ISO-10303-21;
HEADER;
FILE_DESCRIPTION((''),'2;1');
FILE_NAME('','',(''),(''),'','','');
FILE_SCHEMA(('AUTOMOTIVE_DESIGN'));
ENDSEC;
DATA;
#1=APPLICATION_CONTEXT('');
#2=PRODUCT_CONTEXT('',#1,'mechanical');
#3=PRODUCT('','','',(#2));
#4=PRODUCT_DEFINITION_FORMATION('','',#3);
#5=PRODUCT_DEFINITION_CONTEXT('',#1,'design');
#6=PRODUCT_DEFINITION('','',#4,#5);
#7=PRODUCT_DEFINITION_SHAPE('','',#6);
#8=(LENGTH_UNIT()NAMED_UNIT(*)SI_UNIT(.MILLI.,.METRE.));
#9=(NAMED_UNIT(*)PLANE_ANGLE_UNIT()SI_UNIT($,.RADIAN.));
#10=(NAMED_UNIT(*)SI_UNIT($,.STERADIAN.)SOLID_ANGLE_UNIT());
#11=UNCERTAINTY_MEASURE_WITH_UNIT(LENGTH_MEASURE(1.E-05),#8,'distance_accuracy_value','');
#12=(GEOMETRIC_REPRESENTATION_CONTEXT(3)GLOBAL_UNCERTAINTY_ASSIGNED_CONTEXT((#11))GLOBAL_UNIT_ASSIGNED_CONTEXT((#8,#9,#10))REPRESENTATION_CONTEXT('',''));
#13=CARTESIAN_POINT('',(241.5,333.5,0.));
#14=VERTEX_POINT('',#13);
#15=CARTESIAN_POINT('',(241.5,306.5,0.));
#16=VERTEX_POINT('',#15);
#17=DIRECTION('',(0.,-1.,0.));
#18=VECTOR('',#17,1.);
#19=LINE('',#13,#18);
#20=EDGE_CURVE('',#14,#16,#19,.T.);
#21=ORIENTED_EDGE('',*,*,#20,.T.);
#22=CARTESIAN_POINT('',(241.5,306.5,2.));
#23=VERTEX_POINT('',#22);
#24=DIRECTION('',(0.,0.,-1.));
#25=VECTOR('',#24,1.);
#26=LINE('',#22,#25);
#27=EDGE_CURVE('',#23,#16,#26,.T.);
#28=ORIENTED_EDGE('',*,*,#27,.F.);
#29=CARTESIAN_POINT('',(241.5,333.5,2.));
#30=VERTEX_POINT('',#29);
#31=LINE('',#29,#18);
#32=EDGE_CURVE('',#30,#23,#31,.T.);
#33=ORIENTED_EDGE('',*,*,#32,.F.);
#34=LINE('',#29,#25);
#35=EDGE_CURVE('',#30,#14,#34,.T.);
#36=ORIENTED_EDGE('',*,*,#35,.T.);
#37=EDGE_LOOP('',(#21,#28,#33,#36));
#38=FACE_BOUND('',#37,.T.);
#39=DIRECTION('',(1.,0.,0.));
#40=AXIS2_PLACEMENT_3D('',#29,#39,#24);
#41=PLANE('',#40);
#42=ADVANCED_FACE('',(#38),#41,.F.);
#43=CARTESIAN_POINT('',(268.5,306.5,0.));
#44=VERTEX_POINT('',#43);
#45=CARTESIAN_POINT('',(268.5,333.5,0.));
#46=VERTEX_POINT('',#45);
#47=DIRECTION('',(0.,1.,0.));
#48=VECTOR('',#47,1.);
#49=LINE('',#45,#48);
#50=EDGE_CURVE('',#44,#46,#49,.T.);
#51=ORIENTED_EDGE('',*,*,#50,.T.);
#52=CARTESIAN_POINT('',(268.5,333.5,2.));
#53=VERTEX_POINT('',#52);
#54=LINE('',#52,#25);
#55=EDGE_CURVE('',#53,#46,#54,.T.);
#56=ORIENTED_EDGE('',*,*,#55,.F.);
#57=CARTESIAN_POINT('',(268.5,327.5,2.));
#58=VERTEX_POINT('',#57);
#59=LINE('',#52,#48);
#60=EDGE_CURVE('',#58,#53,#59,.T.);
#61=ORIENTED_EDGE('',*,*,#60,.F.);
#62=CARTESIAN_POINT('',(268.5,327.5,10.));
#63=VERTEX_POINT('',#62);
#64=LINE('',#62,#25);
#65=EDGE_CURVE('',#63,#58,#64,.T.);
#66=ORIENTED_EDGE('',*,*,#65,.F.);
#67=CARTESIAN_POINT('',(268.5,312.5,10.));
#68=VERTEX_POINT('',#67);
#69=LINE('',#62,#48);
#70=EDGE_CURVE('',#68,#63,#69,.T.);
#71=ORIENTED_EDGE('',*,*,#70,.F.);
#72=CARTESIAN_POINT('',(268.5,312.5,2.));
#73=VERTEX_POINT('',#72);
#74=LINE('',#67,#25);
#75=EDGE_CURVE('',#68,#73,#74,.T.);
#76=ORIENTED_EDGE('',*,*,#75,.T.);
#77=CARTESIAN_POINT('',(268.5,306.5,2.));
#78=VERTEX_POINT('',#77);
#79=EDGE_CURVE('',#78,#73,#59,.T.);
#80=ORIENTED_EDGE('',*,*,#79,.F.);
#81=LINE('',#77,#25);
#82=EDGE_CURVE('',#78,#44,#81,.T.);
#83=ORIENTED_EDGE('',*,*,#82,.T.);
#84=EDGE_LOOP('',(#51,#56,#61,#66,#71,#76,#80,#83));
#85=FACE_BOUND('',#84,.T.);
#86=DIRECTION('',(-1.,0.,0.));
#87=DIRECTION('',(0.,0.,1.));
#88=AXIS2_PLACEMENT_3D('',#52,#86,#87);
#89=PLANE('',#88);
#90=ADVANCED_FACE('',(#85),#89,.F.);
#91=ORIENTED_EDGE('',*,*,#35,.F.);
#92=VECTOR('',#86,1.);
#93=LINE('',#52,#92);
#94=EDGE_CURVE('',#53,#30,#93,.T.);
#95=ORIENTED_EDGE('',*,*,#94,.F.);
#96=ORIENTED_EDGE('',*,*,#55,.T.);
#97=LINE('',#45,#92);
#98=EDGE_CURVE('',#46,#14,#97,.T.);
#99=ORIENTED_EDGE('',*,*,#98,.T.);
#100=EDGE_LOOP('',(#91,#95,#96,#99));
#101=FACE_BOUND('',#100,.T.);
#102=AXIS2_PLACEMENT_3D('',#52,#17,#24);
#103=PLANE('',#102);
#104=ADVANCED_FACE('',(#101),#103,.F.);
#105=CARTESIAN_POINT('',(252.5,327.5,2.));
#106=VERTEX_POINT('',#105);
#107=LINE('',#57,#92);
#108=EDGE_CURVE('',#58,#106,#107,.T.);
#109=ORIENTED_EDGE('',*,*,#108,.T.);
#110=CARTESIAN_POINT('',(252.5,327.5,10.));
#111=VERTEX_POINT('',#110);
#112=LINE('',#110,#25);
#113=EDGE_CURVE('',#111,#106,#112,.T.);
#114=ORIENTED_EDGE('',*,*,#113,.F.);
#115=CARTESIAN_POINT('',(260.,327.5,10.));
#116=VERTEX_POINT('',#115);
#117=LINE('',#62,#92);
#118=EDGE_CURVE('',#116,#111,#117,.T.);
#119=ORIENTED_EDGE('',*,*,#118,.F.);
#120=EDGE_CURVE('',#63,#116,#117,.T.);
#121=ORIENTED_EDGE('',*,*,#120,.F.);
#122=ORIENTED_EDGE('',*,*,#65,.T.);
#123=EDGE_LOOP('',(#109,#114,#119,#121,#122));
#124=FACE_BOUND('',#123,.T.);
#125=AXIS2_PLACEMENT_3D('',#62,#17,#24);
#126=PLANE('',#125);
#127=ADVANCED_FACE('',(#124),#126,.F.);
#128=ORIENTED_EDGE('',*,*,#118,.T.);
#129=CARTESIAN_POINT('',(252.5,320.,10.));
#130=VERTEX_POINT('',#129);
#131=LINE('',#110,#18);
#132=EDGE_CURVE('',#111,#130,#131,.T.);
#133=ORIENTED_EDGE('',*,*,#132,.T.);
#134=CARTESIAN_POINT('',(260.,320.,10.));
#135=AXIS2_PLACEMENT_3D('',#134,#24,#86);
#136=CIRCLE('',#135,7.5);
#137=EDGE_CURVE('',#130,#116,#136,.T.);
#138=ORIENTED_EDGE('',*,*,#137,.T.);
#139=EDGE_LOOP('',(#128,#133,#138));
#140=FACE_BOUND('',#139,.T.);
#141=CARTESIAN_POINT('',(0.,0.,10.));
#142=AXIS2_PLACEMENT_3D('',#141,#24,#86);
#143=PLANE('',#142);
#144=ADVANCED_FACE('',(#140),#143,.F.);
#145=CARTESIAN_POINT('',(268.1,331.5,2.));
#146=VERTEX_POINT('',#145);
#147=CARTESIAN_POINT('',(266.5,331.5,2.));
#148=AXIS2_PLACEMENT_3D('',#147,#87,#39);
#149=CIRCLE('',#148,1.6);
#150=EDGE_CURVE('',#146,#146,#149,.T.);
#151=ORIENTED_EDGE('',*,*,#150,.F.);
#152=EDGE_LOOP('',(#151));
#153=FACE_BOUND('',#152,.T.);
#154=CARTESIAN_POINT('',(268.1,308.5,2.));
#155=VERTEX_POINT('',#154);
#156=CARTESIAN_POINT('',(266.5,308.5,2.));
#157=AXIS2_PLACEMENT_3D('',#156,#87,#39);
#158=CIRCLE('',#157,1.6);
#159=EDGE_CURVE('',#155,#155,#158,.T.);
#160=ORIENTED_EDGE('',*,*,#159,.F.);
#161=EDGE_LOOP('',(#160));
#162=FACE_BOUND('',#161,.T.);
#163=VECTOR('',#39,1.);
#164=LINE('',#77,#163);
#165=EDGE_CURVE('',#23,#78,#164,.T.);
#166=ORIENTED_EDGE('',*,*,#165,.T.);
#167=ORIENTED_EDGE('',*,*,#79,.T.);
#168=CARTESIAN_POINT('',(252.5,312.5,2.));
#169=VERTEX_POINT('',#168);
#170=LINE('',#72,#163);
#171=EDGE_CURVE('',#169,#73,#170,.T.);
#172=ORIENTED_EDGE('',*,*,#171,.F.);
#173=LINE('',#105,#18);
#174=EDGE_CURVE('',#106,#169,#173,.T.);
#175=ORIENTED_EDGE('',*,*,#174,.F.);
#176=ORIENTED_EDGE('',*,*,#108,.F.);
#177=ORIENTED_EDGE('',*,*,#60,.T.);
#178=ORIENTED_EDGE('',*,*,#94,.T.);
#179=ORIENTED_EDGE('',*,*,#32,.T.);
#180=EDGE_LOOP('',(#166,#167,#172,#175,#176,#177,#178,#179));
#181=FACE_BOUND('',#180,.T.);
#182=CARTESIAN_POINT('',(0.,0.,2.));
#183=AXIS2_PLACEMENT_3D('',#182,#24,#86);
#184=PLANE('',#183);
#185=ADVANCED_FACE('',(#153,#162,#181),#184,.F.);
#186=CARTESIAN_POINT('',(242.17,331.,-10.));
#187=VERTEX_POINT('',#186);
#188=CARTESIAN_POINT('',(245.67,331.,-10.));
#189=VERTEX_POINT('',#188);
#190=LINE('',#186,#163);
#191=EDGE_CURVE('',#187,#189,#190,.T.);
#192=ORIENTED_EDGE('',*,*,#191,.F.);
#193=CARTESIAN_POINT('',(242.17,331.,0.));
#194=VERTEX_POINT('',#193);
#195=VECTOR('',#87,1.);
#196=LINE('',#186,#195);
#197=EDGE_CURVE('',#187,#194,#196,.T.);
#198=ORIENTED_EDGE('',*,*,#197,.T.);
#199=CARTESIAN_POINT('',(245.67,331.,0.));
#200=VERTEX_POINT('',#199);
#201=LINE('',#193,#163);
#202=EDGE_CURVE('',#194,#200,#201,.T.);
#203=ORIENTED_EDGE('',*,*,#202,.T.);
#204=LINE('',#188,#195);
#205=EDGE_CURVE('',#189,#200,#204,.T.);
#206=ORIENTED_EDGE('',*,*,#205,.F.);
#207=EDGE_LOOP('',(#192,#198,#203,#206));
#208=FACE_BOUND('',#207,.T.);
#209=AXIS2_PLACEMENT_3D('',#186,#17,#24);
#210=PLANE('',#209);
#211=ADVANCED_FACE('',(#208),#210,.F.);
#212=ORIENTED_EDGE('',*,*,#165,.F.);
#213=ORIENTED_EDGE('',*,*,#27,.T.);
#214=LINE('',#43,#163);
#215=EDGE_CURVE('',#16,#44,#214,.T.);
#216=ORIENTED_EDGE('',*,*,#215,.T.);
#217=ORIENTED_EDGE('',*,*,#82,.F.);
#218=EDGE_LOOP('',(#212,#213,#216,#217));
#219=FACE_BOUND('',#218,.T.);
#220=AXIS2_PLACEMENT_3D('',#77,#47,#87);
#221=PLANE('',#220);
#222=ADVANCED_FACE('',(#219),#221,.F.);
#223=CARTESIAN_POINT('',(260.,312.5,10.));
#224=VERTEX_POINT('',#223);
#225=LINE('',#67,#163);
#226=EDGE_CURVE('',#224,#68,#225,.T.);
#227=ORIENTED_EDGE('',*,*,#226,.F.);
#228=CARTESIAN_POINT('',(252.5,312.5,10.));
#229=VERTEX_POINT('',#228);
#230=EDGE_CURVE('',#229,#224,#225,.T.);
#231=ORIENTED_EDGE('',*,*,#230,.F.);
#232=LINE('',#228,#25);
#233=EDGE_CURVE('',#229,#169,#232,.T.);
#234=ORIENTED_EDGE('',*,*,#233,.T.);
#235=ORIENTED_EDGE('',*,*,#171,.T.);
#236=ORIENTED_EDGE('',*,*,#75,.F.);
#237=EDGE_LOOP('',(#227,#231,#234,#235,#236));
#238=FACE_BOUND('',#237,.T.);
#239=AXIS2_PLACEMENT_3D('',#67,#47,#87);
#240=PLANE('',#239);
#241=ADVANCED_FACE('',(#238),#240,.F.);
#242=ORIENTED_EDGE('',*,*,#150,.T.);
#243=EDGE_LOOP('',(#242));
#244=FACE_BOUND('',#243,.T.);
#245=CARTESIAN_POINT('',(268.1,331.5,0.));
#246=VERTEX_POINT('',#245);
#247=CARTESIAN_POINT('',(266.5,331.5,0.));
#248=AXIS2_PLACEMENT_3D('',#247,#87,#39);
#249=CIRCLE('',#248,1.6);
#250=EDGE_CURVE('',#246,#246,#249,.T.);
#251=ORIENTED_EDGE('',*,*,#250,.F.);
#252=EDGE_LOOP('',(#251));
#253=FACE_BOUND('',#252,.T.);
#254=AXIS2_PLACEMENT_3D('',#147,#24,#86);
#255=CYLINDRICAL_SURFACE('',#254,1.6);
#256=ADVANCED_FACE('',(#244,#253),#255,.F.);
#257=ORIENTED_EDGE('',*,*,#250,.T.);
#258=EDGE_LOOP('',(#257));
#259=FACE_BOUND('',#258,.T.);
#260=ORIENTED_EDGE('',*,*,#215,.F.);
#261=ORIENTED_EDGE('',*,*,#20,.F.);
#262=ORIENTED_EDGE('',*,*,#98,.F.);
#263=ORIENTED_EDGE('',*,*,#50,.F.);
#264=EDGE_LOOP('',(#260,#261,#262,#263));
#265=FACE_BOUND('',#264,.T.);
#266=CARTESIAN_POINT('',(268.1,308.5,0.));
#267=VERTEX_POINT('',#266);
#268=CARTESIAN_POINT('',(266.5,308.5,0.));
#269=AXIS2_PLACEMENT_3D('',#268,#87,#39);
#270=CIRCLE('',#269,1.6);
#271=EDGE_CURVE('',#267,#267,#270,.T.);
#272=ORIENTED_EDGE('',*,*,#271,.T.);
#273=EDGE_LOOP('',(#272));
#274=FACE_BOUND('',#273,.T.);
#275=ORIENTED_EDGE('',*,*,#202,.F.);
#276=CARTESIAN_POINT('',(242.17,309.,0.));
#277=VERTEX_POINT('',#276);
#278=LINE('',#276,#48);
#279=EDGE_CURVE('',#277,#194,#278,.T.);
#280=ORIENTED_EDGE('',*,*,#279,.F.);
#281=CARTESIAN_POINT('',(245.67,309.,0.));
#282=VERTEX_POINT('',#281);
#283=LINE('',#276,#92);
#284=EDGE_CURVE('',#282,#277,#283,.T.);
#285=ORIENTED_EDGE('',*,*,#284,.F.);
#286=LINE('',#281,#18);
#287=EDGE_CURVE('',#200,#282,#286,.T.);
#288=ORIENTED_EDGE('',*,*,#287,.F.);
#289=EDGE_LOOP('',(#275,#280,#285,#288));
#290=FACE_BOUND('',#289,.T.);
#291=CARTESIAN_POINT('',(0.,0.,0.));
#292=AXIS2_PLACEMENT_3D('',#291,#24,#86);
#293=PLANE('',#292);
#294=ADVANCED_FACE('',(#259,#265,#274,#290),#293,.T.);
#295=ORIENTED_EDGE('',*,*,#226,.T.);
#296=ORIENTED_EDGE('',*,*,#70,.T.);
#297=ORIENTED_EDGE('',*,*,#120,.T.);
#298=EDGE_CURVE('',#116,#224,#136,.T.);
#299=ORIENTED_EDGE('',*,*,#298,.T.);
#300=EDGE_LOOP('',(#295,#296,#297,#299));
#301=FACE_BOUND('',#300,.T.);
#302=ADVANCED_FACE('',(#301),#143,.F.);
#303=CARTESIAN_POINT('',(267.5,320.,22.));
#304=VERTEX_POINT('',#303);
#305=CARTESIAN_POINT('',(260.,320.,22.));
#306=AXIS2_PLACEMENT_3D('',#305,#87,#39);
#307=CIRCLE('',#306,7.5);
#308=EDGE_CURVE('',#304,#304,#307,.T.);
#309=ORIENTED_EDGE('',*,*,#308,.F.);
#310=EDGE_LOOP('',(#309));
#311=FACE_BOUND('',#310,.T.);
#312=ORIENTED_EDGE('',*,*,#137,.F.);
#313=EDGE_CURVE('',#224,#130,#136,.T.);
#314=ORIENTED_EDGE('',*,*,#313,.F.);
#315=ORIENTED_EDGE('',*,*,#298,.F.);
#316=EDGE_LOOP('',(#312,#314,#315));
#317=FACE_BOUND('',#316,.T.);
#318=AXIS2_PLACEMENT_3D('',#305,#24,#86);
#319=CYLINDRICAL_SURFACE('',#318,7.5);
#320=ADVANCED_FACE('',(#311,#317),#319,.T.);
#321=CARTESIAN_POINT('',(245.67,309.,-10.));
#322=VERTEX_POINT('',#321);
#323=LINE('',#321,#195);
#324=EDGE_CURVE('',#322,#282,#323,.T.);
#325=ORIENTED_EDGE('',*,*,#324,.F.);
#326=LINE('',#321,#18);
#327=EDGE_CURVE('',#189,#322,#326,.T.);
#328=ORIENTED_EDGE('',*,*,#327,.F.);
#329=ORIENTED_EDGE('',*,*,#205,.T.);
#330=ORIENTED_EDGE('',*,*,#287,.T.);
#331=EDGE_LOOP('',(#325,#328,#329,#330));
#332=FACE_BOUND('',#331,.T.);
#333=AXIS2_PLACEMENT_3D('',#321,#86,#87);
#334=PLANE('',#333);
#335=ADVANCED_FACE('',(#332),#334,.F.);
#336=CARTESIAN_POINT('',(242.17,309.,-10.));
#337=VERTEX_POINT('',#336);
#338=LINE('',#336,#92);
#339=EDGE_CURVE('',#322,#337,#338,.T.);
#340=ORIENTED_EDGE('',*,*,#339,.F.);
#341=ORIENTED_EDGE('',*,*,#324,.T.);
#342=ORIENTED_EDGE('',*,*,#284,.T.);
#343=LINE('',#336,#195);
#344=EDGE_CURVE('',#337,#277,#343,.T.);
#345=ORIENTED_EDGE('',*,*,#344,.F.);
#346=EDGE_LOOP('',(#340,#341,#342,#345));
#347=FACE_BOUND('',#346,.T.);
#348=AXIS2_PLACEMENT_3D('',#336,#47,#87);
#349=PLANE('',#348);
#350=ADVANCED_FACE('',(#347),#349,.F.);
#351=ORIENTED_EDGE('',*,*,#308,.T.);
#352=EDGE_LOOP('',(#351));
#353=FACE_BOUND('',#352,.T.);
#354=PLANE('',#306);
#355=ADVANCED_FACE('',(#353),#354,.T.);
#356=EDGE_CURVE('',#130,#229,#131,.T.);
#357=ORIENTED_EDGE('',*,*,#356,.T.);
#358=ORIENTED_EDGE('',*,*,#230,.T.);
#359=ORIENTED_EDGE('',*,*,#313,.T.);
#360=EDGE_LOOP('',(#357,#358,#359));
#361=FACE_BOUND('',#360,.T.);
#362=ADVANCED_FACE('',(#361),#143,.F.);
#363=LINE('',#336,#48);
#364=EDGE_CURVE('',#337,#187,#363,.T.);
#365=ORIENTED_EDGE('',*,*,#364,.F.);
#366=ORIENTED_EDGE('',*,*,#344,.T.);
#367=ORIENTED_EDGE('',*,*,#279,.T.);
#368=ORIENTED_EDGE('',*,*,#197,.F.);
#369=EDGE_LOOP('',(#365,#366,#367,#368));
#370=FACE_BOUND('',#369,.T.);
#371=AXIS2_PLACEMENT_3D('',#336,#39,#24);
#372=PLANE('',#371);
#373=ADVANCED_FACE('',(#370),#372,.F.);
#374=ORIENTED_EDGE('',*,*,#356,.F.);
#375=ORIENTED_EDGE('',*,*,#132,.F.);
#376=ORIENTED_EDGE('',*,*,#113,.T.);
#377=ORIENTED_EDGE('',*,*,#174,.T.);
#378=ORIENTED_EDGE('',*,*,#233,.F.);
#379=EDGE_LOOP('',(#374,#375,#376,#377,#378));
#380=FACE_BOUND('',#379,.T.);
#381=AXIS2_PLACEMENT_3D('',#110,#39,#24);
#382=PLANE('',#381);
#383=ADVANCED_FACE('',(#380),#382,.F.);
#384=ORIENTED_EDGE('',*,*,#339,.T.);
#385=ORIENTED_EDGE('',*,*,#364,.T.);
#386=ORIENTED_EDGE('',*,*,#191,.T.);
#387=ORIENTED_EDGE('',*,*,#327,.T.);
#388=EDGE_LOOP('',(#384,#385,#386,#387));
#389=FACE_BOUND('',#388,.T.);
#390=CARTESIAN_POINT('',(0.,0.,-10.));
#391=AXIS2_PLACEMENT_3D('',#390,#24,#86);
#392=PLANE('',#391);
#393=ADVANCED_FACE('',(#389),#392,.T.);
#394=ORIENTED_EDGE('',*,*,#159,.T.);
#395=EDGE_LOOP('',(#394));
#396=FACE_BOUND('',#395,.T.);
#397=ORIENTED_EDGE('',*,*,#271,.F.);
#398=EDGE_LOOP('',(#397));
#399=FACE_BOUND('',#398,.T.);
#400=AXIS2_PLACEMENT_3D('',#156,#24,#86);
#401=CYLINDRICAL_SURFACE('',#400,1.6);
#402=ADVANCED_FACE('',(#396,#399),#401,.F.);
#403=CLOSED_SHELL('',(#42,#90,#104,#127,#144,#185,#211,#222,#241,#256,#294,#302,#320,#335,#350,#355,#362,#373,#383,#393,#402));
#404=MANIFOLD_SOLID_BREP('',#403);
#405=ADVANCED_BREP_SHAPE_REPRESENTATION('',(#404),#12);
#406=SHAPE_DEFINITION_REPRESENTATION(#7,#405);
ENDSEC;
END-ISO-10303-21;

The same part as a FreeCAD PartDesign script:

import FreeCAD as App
import Part
import Sketcher
Q = App.Units.Quantity

doc = App.newDocument("Part")
body = doc.addObject("PartDesign::Body", "Body")

sketch1 = body.newObject("Sketcher::SketchObject", "Sketch")
sketch1.AttachmentSupport = (doc.getObject("XY_Plane"), [""])
sketch1.MapMode = "FlatFace"
sketch1.addGeometry(Part.LineSegment(App.Vector(241.5, 333.5, 0), App.Vector(241.5, 306.5, 0)), False)
sketch1.addGeometry(Part.LineSegment(App.Vector(241.5, 306.5, 0), App.Vector(268.5, 306.5, 0)), False)
sketch1.addGeometry(Part.LineSegment(App.Vector(268.5, 306.5, 0), App.Vector(268.5, 333.5, 0)), False)
sketch1.addGeometry(Part.LineSegment(App.Vector(268.5, 333.5, 0), App.Vector(241.5, 333.5, 0)), False)
sketch1.addGeometry(Part.Circle(App.Vector(266.5, 308.5, 0), App.Vector(0, 0, 1), 1.6), False)
sketch1.addGeometry(Part.Circle(App.Vector(266.5, 331.5, 0), App.Vector(0, 0, 1), 1.6), False)
sketch1.addConstraint(Sketcher.Constraint("Coincident", 0, 2, 1, 1))
sketch1.addConstraint(Sketcher.Constraint("Coincident", 1, 2, 2, 1))
sketch1.addConstraint(Sketcher.Constraint("Coincident", 2, 2, 3, 1))
sketch1.addConstraint(Sketcher.Constraint("Coincident", 3, 2, 0, 1))
sketch1.addConstraint(Sketcher.Constraint("Vertical", 0))
sketch1.addConstraint(Sketcher.Constraint("Horizontal", 1))
sketch1.addConstraint(Sketcher.Constraint("Vertical", 2))
sketch1.addConstraint(Sketcher.Constraint("Horizontal", 3))
sketch1.addConstraint(Sketcher.Constraint("Equal", 4, 5))
sketch1.addConstraint(Sketcher.Constraint("Vertical", 4, 3, 5, 3))
sketch1.addConstraint(Sketcher.Constraint("Equal", 3, 0))
sketch1.addConstraint(Sketcher.Constraint("Diameter", 4, Q("3.2 mm")))
sketch1.addConstraint(Sketcher.Constraint("DistanceX", 1, 1, 1, 2, Q("27 mm")))
sketch1.addConstraint(Sketcher.Constraint("DistanceY", 4, 3, 5, 3, Q("23 mm")))
sketch1.addConstraint(Sketcher.Constraint("DistanceX", 0, 2, 4, 3, Q("25 mm")))
sketch1.addConstraint(Sketcher.Constraint("DistanceY", 0, 2, 4, 3, Q("2 mm")))
sketch1.addConstraint(Sketcher.Constraint("DistanceX", -1, 1, 4, 3, Q("266.5 mm")))
sketch1.addConstraint(Sketcher.Constraint("DistanceY", -1, 1, 4, 3, Q("308.5 mm")))
pad1 = body.newObject("PartDesign::Pad", "Pad")
pad1.Profile = sketch1
pad1.Length = 2

sketch2 = body.newObject("Sketcher::SketchObject", "Sketch001")
sketch2.AttachmentSupport = (doc.getObject("XY_Plane"), [""])
sketch2.MapMode = "FlatFace"
sketch2.AttachmentOffset = App.Placement(App.Vector(0, 0, 2), App.Rotation())
sketch2.addGeometry(Part.Circle(App.Vector(260, 320, 0), App.Vector(0, 0, 1), 8), False)
sketch2.addConstraint(Sketcher.Constraint("Diameter", 0, Q("15 mm")))
sketch2.addConstraint(Sketcher.Constraint("DistanceX", -1, 1, 0, 3, Q("260 mm")))
sketch2.addConstraint(Sketcher.Constraint("DistanceY", -1, 1, 0, 3, Q("320 mm")))
pad2 = body.newObject("PartDesign::Pad", "Pad001")
pad2.Profile = sketch2
pad2.Length = 20

sketch3 = body.newObject("Sketcher::SketchObject", "Sketch002")
sketch3.AttachmentSupport = (doc.getObject("XY_Plane"), [""])
sketch3.MapMode = "FlatFace"
sketch3.AttachmentOffset = App.Placement(App.Vector(0, 0, 2), App.Rotation())
sketch3.addGeometry(Part.LineSegment(App.Vector(252, 328, 0), App.Vector(252, 312, 0)), False)
sketch3.addGeometry(Part.LineSegment(App.Vector(252, 312, 0), App.Vector(268, 312, 0)), False)
sketch3.addGeometry(Part.LineSegment(App.Vector(268, 312, 0), App.Vector(268, 328, 0)), False)
sketch3.addGeometry(Part.LineSegment(App.Vector(268, 328, 0), App.Vector(252, 328, 0)), False)
sketch3.addConstraint(Sketcher.Constraint("Coincident", 0, 2, 1, 1))
sketch3.addConstraint(Sketcher.Constraint("Coincident", 1, 2, 2, 1))
sketch3.addConstraint(Sketcher.Constraint("Coincident", 2, 2, 3, 1))
sketch3.addConstraint(Sketcher.Constraint("Coincident", 3, 2, 0, 1))
sketch3.addConstraint(Sketcher.Constraint("Vertical", 0))
sketch3.addConstraint(Sketcher.Constraint("Horizontal", 1))
sketch3.addConstraint(Sketcher.Constraint("Vertical", 2))
sketch3.addConstraint(Sketcher.Constraint("Horizontal", 3))
sketch3.addConstraint(Sketcher.Constraint("DistanceX", 1, 1, 1, 2, Q("16 mm")))
sketch3.addConstraint(Sketcher.Constraint("DistanceY", 0, 2, 0, 1, Q("15 mm")))
sketch3.addConstraint(Sketcher.Constraint("DistanceX", -1, 1, 0, 2, Q("252.5 mm")))
sketch3.addConstraint(Sketcher.Constraint("DistanceY", -1, 1, 0, 2, Q("312.5 mm")))
pad3 = body.newObject("PartDesign::Pad", "Pad002")
pad3.Profile = sketch3
pad3.Length = 8

sketch4 = body.newObject("Sketcher::SketchObject", "Sketch003")
sketch4.AttachmentSupport = (doc.getObject("XY_Plane"), [""])
sketch4.MapMode = "FlatFace"
sketch4.addGeometry(Part.LineSegment(App.Vector(245.7, 331, 0), App.Vector(245.7, 309, 0)), False)
sketch4.addGeometry(Part.LineSegment(App.Vector(245.7, 309, 0), App.Vector(242.2, 309, 0)), False)
sketch4.addGeometry(Part.LineSegment(App.Vector(242.2, 309, 0), App.Vector(242.2, 331, 0)), False)
sketch4.addGeometry(Part.LineSegment(App.Vector(242.2, 331, 0), App.Vector(245.7, 331, 0)), False)
sketch4.addConstraint(Sketcher.Constraint("Coincident", 0, 2, 1, 1))
sketch4.addConstraint(Sketcher.Constraint("Coincident", 1, 2, 2, 1))
sketch4.addConstraint(Sketcher.Constraint("Coincident", 2, 2, 3, 1))
sketch4.addConstraint(Sketcher.Constraint("Coincident", 3, 2, 0, 1))
sketch4.addConstraint(Sketcher.Constraint("Vertical", 0))
sketch4.addConstraint(Sketcher.Constraint("Horizontal", 1))
sketch4.addConstraint(Sketcher.Constraint("Vertical", 2))
sketch4.addConstraint(Sketcher.Constraint("Horizontal", 3))
sketch4.addConstraint(Sketcher.Constraint("DistanceY", 0, 2, 0, 1, Q("22 mm")))
sketch4.addConstraint(Sketcher.Constraint("DistanceX", 1, 2, 1, 1, Q("3.5 mm")))
sketch4.addConstraint(Sketcher.Constraint("DistanceY", -1, 1, 0, 2, Q("309 mm")))
sketch4.addConstraint(Sketcher.Constraint("DistanceX", -1, 1, 0, 2, Q("245.67 mm")))
pad4 = body.newObject("PartDesign::Pad", "Pad003")
pad4.Profile = sketch4
pad4.Length = 10
pad4.Reversed = True

doc.recompute()
